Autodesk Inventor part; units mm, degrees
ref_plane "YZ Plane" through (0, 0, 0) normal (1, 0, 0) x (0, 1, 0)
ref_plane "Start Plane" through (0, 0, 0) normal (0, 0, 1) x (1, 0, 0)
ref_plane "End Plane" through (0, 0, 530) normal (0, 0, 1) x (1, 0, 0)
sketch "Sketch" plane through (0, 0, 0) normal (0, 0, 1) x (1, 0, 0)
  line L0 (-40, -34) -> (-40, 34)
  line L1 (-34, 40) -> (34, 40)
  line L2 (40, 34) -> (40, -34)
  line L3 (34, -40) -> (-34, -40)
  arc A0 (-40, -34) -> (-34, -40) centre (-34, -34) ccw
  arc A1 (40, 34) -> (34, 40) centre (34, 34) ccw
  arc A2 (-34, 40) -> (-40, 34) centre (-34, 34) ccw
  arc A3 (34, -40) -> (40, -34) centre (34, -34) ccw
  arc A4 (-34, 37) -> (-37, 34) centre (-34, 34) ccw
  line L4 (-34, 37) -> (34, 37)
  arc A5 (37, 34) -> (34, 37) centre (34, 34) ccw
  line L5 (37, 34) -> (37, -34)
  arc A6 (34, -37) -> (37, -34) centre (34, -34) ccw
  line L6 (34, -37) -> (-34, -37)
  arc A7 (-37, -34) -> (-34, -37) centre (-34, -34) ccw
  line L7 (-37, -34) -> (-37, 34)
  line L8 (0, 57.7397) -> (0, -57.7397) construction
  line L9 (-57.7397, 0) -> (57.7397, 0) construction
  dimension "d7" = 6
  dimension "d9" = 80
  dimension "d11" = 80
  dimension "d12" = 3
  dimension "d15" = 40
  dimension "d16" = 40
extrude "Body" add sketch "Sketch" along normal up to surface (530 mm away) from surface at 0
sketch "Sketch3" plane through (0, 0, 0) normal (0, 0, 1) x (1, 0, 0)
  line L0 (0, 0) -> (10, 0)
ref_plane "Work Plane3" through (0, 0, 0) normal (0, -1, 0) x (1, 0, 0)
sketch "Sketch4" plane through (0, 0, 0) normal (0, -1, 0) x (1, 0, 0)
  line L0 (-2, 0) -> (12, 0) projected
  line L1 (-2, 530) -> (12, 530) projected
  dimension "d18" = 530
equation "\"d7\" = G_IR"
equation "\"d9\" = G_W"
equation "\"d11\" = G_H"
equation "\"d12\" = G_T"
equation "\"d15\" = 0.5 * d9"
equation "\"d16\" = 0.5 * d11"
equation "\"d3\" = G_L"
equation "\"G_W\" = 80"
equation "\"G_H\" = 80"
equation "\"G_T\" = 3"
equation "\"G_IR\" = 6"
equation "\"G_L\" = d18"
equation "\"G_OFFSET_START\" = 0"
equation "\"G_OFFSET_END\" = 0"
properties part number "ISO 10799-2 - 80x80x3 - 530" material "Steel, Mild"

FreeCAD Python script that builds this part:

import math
import FreeCAD as App
import Part
import Sketcher
from FreeCAD import Vector

doc = App.newDocument("Part")
body = doc.addObject("PartDesign::Body", "Body")

sketch1 = body.newObject("Sketcher::SketchObject", "Sketch")
sketch1.AttachmentSupport = (doc.getObject("XY_Plane"), [""])
sketch1.MapMode = "FlatFace"
sketch1.addGeometry([
    Part.LineSegment(Vector(-40, 34, 0), Vector(-40, -34, 0)),
    Part.ArcOfCircle(Part.Circle(Vector(-34, -34, 0), Vector(0, 0, 1), 6), math.radians(180), math.radians(270)),
    Part.LineSegment(Vector(-34, -40, 0), Vector(34, -40, 0)),
    Part.ArcOfCircle(Part.Circle(Vector(34, -34, 0), Vector(0, 0, 1), 6), math.radians(-90), math.radians(0)),
    Part.LineSegment(Vector(40, -34, 0), Vector(40, 34, 0)),
    Part.ArcOfCircle(Part.Circle(Vector(34, 34, 0), Vector(0, 0, 1), 6), math.radians(0), math.radians(90)),
    Part.LineSegment(Vector(34, 40, 0), Vector(-34, 40, 0)),
    Part.ArcOfCircle(Part.Circle(Vector(-34, 34, 0), Vector(0, 0, 1), 6), math.radians(90), math.radians(180)),
    Part.ArcOfCircle(Part.Circle(Vector(-34, 34, 0), Vector(0, 0, 1), 3), math.radians(90), math.radians(180)),
    Part.LineSegment(Vector(-34, 37, 0), Vector(34, 37, 0)),
    Part.ArcOfCircle(Part.Circle(Vector(34, 34, 0), Vector(0, 0, 1), 3), math.radians(0), math.radians(90)),
    Part.LineSegment(Vector(37, 34, 0), Vector(37, -34, 0)),
    Part.ArcOfCircle(Part.Circle(Vector(34, -34, 0), Vector(0, 0, 1), 3), math.radians(-90), math.radians(0)),
    Part.LineSegment(Vector(34, -37, 0), Vector(-34, -37, 0)),
    Part.ArcOfCircle(Part.Circle(Vector(-34, -34, 0), Vector(0, 0, 1), 3), math.radians(180), math.radians(270)),
    Part.LineSegment(Vector(-37, -34, 0), Vector(-37, 34, 0)),
], False)
sketch1.addConstraint([
    Sketcher.Constraint("Tangent", 0, 2, 1, 1),
    Sketcher.Constraint("Tangent", 1, 2, 2, 1),
    Sketcher.Constraint("Tangent", 2, 2, 3, 1),
    Sketcher.Constraint("Tangent", 3, 2, 4, 1),
    Sketcher.Constraint("Tangent", 4, 2, 5, 1),
    Sketcher.Constraint("Tangent", 5, 2, 6, 1),
    Sketcher.Constraint("Tangent", 6, 2, 7, 1),
    Sketcher.Constraint("Tangent", 7, 2, 0, 1),
    Sketcher.Constraint("Tangent", 8, 1, 9, 1),
    Sketcher.Constraint("Tangent", 9, 2, 10, 2),
    Sketcher.Constraint("Tangent", 10, 1, 11, 1),
    Sketcher.Constraint("Tangent", 11, 2, 12, 2),
    Sketcher.Constraint("Tangent", 12, 1, 13, 1),
    Sketcher.Constraint("Tangent", 13, 2, 14, 2),
    Sketcher.Constraint("Tangent", 14, 1, 15, 1),
    Sketcher.Constraint("Tangent", 15, 2, 8, 2),
    Sketcher.Constraint("Vertical", 0),
    Sketcher.Constraint("Horizontal", 2),
    Sketcher.Constraint("Vertical", 4),
    Sketcher.Constraint("Horizontal", 6),
    Sketcher.Constraint("Horizontal", 9),
    Sketcher.Constraint("Vertical", 11),
    Sketcher.Constraint("Horizontal", 13),
    Sketcher.Constraint("Vertical", 15),
    Sketcher.Constraint("Coincident", 8, 3, 7, 3),
    Sketcher.Constraint("Coincident", 10, 3, 5, 3),
    Sketcher.Constraint("Coincident", 12, 3, 3, 3),
    Sketcher.Constraint("Equal", 1, 3),
    Sketcher.Constraint("Equal", 3, 5),
    Sketcher.Constraint("Equal", 5, 7),
    Sketcher.Constraint("Equal", 12, 14),
    Sketcher.Constraint("Symmetric", 1, 3, 5, 3, -1, 1),
    Sketcher.Constraint("Equal", 13, 0),
    Sketcher.Constraint("Radius", 1, 6.0),
    Sketcher.Constraint("Radius", 8, 3.0),
    Sketcher.Constraint("DistanceX", 0, 2, -1, 1, 40.0),
])
pad1 = body.newObject("PartDesign::Pad", "Pad")
pad1.Profile = sketch1
pad1.Length = 530

doc.recompute()
